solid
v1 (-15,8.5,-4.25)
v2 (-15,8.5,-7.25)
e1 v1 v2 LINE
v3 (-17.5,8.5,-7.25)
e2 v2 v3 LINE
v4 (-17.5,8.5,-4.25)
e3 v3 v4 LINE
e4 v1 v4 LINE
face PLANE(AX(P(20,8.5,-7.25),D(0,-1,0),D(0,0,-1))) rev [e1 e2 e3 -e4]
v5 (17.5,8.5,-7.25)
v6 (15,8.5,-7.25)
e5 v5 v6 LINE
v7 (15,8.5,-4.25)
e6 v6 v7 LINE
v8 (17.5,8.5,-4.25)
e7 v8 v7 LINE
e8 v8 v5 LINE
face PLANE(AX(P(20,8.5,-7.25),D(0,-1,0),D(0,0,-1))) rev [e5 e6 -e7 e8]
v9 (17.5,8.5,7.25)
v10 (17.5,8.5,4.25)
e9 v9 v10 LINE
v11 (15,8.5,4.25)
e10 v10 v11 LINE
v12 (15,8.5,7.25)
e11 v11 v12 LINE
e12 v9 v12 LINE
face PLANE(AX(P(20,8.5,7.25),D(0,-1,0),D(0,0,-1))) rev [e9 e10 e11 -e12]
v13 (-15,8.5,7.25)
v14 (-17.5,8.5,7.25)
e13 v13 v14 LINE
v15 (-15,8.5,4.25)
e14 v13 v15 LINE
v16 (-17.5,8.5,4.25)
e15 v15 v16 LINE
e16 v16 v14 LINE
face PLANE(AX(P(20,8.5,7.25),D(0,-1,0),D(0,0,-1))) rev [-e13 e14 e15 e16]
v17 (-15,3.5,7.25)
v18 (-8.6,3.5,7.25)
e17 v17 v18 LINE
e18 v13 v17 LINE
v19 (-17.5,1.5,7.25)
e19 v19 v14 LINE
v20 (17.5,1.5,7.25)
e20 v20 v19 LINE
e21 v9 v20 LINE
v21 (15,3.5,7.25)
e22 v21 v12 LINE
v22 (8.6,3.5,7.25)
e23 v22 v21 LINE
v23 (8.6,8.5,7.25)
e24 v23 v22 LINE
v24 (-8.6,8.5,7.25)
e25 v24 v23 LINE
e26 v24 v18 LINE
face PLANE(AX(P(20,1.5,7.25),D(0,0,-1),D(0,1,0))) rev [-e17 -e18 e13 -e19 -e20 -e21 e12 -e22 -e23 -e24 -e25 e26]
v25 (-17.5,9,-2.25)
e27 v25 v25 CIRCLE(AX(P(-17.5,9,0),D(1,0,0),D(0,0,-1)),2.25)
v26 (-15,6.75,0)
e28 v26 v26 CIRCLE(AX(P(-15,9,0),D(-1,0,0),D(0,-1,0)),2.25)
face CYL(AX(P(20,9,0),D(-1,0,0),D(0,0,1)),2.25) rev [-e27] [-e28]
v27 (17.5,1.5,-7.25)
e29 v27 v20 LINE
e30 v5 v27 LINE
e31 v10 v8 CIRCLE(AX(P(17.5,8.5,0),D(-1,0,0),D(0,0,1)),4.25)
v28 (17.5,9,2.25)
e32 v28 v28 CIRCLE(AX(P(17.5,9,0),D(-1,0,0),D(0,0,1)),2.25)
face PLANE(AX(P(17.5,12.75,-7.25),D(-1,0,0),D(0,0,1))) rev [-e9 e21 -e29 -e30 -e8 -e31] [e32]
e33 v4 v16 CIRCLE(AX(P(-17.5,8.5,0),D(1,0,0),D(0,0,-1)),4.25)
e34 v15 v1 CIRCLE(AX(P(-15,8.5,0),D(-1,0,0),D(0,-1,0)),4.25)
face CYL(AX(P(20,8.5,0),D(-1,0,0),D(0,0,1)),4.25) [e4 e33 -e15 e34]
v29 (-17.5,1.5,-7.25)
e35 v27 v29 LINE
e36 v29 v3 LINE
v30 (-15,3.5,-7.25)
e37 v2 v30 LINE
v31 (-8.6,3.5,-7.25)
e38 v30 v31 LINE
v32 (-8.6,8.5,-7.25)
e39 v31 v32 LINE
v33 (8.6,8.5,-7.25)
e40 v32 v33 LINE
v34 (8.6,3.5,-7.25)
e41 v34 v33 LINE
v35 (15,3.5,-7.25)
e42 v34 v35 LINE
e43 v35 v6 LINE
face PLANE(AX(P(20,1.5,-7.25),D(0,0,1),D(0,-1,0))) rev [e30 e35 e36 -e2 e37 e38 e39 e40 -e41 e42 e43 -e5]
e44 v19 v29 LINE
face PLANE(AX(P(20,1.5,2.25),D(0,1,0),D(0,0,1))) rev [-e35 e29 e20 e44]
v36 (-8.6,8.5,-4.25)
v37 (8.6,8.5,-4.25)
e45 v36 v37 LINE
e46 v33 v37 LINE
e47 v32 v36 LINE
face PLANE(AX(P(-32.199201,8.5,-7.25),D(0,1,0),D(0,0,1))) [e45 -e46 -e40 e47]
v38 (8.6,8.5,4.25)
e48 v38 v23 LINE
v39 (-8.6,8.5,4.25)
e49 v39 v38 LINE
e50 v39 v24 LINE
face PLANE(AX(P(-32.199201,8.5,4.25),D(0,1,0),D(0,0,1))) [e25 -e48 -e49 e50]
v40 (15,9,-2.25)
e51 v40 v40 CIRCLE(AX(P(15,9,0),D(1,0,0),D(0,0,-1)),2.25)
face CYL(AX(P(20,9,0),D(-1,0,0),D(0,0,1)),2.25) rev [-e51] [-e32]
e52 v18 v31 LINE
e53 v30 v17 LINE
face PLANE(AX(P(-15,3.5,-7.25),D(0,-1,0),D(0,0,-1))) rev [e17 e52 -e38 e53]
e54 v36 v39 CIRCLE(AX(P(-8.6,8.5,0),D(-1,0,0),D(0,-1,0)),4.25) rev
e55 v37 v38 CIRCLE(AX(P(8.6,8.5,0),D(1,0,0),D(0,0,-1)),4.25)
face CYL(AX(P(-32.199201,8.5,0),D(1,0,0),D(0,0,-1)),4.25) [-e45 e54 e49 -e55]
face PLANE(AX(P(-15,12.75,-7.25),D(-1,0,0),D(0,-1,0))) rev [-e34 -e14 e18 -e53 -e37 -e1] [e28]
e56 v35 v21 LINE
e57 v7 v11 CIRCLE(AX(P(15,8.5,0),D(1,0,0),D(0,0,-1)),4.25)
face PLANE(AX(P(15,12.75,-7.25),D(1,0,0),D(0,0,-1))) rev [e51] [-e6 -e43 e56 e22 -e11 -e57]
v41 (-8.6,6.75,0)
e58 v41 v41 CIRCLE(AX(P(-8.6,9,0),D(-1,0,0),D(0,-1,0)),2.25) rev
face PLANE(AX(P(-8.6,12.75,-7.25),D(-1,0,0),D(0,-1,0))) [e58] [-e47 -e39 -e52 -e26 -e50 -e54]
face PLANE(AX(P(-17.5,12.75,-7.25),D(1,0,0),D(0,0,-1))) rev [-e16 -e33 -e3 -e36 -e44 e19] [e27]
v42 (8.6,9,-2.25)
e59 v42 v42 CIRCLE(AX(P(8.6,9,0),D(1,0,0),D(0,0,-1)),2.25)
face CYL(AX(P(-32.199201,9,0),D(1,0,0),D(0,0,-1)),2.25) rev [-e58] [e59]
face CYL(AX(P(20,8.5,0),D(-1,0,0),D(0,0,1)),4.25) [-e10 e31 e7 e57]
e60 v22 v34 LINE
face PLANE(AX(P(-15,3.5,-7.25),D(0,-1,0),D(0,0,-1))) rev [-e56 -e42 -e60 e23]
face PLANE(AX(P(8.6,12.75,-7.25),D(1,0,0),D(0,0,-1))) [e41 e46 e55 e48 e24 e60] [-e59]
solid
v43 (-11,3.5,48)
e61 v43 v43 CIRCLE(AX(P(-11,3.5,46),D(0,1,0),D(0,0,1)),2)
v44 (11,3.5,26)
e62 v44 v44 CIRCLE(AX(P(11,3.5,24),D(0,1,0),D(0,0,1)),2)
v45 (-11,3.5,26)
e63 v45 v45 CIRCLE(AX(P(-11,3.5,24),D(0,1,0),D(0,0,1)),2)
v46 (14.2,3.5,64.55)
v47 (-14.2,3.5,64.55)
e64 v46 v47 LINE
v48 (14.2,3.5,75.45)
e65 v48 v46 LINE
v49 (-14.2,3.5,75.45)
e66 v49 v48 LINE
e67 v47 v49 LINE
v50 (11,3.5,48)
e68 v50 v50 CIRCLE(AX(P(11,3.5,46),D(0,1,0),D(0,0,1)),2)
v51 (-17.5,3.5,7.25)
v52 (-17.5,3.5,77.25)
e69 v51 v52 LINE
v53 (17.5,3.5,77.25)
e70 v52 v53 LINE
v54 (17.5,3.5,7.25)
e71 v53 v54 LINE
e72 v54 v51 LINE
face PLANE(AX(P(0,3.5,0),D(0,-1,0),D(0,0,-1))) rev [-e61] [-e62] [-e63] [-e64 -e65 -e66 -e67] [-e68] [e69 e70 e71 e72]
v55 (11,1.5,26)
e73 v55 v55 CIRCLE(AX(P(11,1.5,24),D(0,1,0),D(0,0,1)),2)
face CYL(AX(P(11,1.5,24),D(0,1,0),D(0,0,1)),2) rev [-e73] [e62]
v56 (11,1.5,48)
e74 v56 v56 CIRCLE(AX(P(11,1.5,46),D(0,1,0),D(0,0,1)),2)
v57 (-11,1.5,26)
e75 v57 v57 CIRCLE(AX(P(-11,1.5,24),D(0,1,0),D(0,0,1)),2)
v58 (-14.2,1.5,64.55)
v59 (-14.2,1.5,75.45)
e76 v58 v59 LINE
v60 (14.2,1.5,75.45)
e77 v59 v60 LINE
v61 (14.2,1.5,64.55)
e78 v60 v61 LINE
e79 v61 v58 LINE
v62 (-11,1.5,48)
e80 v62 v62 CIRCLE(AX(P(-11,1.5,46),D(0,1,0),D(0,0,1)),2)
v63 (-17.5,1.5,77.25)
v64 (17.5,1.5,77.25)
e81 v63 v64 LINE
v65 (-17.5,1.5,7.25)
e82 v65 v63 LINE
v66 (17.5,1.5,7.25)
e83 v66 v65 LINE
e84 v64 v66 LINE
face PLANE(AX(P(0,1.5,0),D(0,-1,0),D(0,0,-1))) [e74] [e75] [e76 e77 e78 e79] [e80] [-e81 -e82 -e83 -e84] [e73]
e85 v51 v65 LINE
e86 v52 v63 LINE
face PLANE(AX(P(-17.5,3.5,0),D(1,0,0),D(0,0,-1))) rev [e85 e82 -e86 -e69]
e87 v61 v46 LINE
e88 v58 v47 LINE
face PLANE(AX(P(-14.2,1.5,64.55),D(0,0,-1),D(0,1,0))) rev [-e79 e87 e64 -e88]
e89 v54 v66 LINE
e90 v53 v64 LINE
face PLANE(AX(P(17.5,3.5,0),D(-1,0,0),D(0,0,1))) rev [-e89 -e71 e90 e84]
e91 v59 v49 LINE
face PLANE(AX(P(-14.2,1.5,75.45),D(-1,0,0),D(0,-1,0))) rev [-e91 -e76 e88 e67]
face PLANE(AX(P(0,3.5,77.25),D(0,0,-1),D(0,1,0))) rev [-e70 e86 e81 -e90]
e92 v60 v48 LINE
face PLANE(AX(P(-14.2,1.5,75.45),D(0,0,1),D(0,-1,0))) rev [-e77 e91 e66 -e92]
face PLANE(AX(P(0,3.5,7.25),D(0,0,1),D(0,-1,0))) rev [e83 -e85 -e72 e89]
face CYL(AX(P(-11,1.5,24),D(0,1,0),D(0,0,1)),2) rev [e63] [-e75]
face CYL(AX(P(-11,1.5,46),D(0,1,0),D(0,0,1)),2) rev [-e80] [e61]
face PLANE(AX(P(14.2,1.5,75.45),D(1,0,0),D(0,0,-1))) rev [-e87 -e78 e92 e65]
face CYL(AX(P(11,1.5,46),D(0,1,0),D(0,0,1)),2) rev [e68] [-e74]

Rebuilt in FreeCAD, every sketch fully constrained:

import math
import FreeCAD as App
import Part
import Sketcher
from FreeCAD import Vector
Q = App.Units.Quantity


def add_polygon(sketch, points):
    """Adds a closed chain of lines whose ends are joined by coincident constraints."""
    first, n = sketch.GeometryCount, len(points)
    for a, b in zip(points, points[1:] + points[:1]):
        sketch.addGeometry(Part.LineSegment(App.Vector(*a, 0), App.Vector(*b, 0)), False)
    for i in range(n):
        sketch.addConstraint(Sketcher.Constraint("Coincident", first + i, 2, first + (i + 1) % n, 1))

doc = App.newDocument("Part")
body = doc.addObject("PartDesign::Body", "Body")

sketch1 = body.newObject("Sketcher::SketchObject", "Sketch")
sketch1.AttachmentSupport = (doc.getObject("YZ_Plane"), [""])
sketch1.MapMode = "FlatFace"
sketch1.addGeometry([
    Part.LineSegment(Vector(1.5, -2.25, 0), Vector(1.5, -7.25, 0)),
    Part.LineSegment(Vector(1.5, -7.25, 0), Vector(8.5, -7.25, 0)),
    Part.LineSegment(Vector(8.5, -7.25, 0), Vector(8.5, -4.25, 0)),
    Part.ArcOfCircle(Part.Circle(Vector(8.5, 0, 0), Vector(0, 0, 1), 4.25), math.radians(-90), math.radians(90)),
    Part.LineSegment(Vector(8.5, 4.25, 0), Vector(8.5, 7.25, 0)),
    Part.LineSegment(Vector(8.5, 7.25, 0), Vector(1.5, 7.25, 0)),
    Part.LineSegment(Vector(1.5, 7.25, 0), Vector(1.5, 2.25, 0)),
    Part.LineSegment(Vector(1.5, 2.25, 0), Vector(-1.5, 2.25, 0)),
    Part.LineSegment(Vector(-1.5, 2.25, 0), Vector(-1.5, -2.25, 0)),
    Part.LineSegment(Vector(-1.5, -2.25, 0), Vector(1.5, -2.25, 0)),
    Part.Circle(Vector(9, 0, 0), Vector(0, 0, 1), 2.25),
], False)
sketch1.addConstraint([
    Sketcher.Constraint("Coincident", 0, 2, 1, 1),
    Sketcher.Constraint("Coincident", 1, 2, 2, 1),
    Sketcher.Constraint("Coincident", 2, 2, 3, 1),
    Sketcher.Constraint("Coincident", 3, 2, 4, 1),
    Sketcher.Constraint("Coincident", 4, 2, 5, 1),
    Sketcher.Constraint("Coincident", 5, 2, 6, 1),
    Sketcher.Constraint("Coincident", 6, 2, 7, 1),
    Sketcher.Constraint("Coincident", 7, 2, 8, 1),
    Sketcher.Constraint("Coincident", 8, 2, 9, 1),
    Sketcher.Constraint("Coincident", 9, 2, 0, 1),
    Sketcher.Constraint("Vertical", 0),
    Sketcher.Constraint("Horizontal", 1),
    Sketcher.Constraint("Vertical", 2),
    Sketcher.Constraint("Vertical", 4),
    Sketcher.Constraint("Horizontal", 5),
    Sketcher.Constraint("Vertical", 6),
    Sketcher.Constraint("Horizontal", 7),
    Sketcher.Constraint("Vertical", 8),
    Sketcher.Constraint("Horizontal", 9),
    Sketcher.Constraint("Symmetric", 6, 2, 8, 2, -1, 1),
    Sketcher.Constraint("Symmetric", 2, 2, 3, 2, -1),
    Sketcher.Constraint("Symmetric", 0, 2, 5, 2, -1),
    Sketcher.Constraint("PointOnObject", 10, 3, -1),
    Sketcher.Constraint("Vertical", 3, 3, 1, 2),
    Sketcher.Constraint("Equal", 9, 2),
    Sketcher.Constraint("Diameter", 10, Q("4.5 mm")),
    Sketcher.Constraint("DistanceX", 1, 1, 1, 2, Q("7 mm")),
    Sketcher.Constraint("DistanceX", 7, 2, 7, 1, Q("3 mm")),
    Sketcher.Constraint("DistanceY", 0, 2, 0, 1, Q("5 mm")),
    Sketcher.Constraint("Radius", 3, Q("4.25 mm")),
    Sketcher.Constraint("DistanceX", -1, 1, 10, 3, Q("9 mm")),
])
pad1 = body.newObject("PartDesign::Pad", "Pad")
pad1.Profile = sketch1
pad1.Length = 40
pad1.Midplane = True

sketch2 = body.newObject("Sketcher::SketchObject", "Sketch001")
sketch2.AttachmentSupport = (doc.getObject("XY_Plane"), [""])
sketch2.MapMode = "FlatFace"
sketch2.AttachmentOffset = App.Placement(Vector(0, 0, 7.25), App.Rotation())
add_polygon(sketch2, [(-15, 12.75), (-15, 3.5), (15, 3.5), (15, 12.75)])
sketch2.addConstraint([
    Sketcher.Constraint("Vertical", 0),
    Sketcher.Constraint("Horizontal", 1),
    Sketcher.Constraint("Vertical", 2),
    Sketcher.Constraint("Horizontal", 3),
    Sketcher.Constraint("DistanceX", 1, 1, 1, 2, Q("30 mm")),
    Sketcher.Constraint("DistanceX", 0, 2, -1, 1, Q("15 mm")),
    Sketcher.Constraint("DistanceY", 0, 2, 0, 1, Q("9.25 mm")),
    Sketcher.Constraint("DistanceY", -1, 1, 0, 2, Q("3.5 mm")),
])
pocket1 = body.newObject("PartDesign::Pocket", "Pocket")
pocket1.Profile = sketch2
pocket1.Type = "ThroughAll"

sketch3 = body.newObject("Sketcher::SketchObject", "Sketch002")
sketch3.AttachmentSupport = (doc.getObject("XY_Plane"), [""])
sketch3.MapMode = "FlatFace"
sketch3.AttachmentOffset = App.Placement(Vector(0, 0, 7.25), App.Rotation())
add_polygon(sketch3, [(-20, 12.75), (-20, -1.5), (-17.5, -1.5), (-17.5, 12.75)])
add_polygon(sketch3, [(17.5, 12.75), (17.5, -1.5), (20, -1.5), (20, 12.75)])
sketch3.addConstraint([
    Sketcher.Constraint("Vertical", 0),
    Sketcher.Constraint("Horizontal", 1),
    Sketcher.Constraint("Vertical", 2),
    Sketcher.Constraint("Horizontal", 3),
    Sketcher.Constraint("Vertical", 4),
    Sketcher.Constraint("Horizontal", 5),
    Sketcher.Constraint("Vertical", 6),
    Sketcher.Constraint("Horizontal", 7),
    Sketcher.Constraint("Symmetric", 1, 2, 4, 2, -2),
    Sketcher.Constraint("Symmetric", 3, 2, 6, 2, -2),
    Sketcher.Constraint("DistanceX", 1, 1, 1, 2, Q("2.5 mm")),
    Sketcher.Constraint("DistanceX", 0, 2, -1, 1, Q("20 mm")),
    Sketcher.Constraint("DistanceY", 0, 2, 0, 1, Q("14.25 mm")),
    Sketcher.Constraint("DistanceY", 0, 2, -1, 1, Q("1.5 mm")),
])
pocket2 = body.newObject("PartDesign::Pocket", "Pocket001")
pocket2.Profile = sketch3
pocket2.Type = "ThroughAll"

sketch4 = body.newObject("Sketcher::SketchObject", "Sketch003")
sketch4.AttachmentSupport = (doc.getObject("YZ_Plane"), [""])
sketch4.MapMode = "FlatFace"
sketch4.addGeometry([
    Part.LineSegment(Vector(8.5, 4.25, 0), Vector(8.5, 7.25, 0)),
    Part.LineSegment(Vector(8.5, 7.25, 0), Vector(3.5, 7.25, 0)),
    Part.LineSegment(Vector(3.5, 7.25, 0), Vector(3.5, -7.25, 0)),
    Part.LineSegment(Vector(3.5, -7.25, 0), Vector(8.5, -7.25, 0)),
    Part.LineSegment(Vector(8.5, -7.25, 0), Vector(8.5, -4.25, 0)),
    Part.ArcOfCircle(Part.Circle(Vector(8.5, 0, 0), Vector(0, 0, 1), 4.25), math.radians(-90), math.radians(90)),
    Part.Circle(Vector(9, 0, 0), Vector(0, 0, 1), 2.25),
], False)
sketch4.addConstraint([
    Sketcher.Constraint("Coincident", 0, 2, 1, 1),
    Sketcher.Constraint("Coincident", 1, 2, 2, 1),
    Sketcher.Constraint("Coincident", 2, 2, 3, 1),
    Sketcher.Constraint("Coincident", 3, 2, 4, 1),
    Sketcher.Constraint("Coincident", 4, 2, 5, 1),
    Sketcher.Constraint("Coincident", 5, 2, 0, 1),
    Sketcher.Constraint("Vertical", 0),
    Sketcher.Constraint("Horizontal", 1),
    Sketcher.Constraint("Vertical", 2),
    Sketcher.Constraint("Horizontal", 3),
    Sketcher.Constraint("Vertical", 4),
    Sketcher.Constraint("Symmetric", 0, 2, 3, 2, -1),
    Sketcher.Constraint("PointOnObject", 5, 3, -1),
    Sketcher.Constraint("PointOnObject", 6, 3, -1),
    Sketcher.Constraint("Vertical", 5, 3, 0, 2),
    Sketcher.Constraint("Diameter", 6, Q("4.5 mm")),
    Sketcher.Constraint("DistanceX", 1, 2, 1, 1, Q("5 mm")),
    Sketcher.Constraint("DistanceY", 0, 1, 0, 2, Q("3 mm")),
    Sketcher.Constraint("Radius", 5, Q("4.25 mm")),
    Sketcher.Constraint("DistanceX", -1, 1, 6, 3, Q("9 mm")),
    Sketcher.Constraint("DistanceX", -1, 1, 5, 3, Q("8.5 mm")),
])
pad2 = body.newObject("PartDesign::Pad", "Pad001")
pad2.Profile = sketch4
pad2.Type = "TwoLengths"
pad2.Length = 8.6
pad2.Length2 = 8.6

sketch5 = body.newObject("Sketcher::SketchObject", "Sketch004")
sketch5.AttachmentSupport = (doc.getObject("YZ_Plane"), [""])
sketch5.MapMode = "FlatFace"
sketch5.AttachmentOffset = App.Placement(Vector(0, 0, -17.5), App.Rotation())
add_polygon(sketch5, [(1.5, -2.25), (-1.5, -2.25), (-1.5, 2.25), (1.5, 2.25)])
sketch5.addConstraint([
    Sketcher.Constraint("Horizontal", 0),
    Sketcher.Constraint("Vertical", 1),
    Sketcher.Constraint("Horizontal", 2),
    Sketcher.Constraint("Vertical", 3),
    Sketcher.Constraint("Symmetric", 0, 2, 2, 2, -1, 1),
    Sketcher.Constraint("DistanceX", 0, 2, 0, 1, Q("3 mm")),
    Sketcher.Constraint("DistanceY", 1, 1, 1, 2, Q("4.5 mm")),
])
pocket3 = body.newObject("PartDesign::Pocket", "Pocket002")
pocket3.Profile = sketch5
pocket3.Type = "ThroughAll"
pocket3.Reversed = True
body2 = doc.addObject("PartDesign::Body", "Body001")

sketch6 = body2.newObject("Sketcher::SketchObject", "Sketch005")
sketch6.AttachmentSupport = (doc.getObject("XZ_Plane001"), [""])
sketch6.MapMode = "FlatFace"
sketch6.AttachmentOffset = App.Placement(Vector(0, 0, -1.5), App.Rotation())
add_polygon(sketch6, [(-17.5, 77.25), (-17.5, 7.25), (17.5, 7.25), (17.5, 77.25)])
sketch6.addConstraint([
    Sketcher.Constraint("Vertical", 0),
    Sketcher.Constraint("Horizontal", 1),
    Sketcher.Constraint("Vertical", 2),
    Sketcher.Constraint("Horizontal", 3),
    Sketcher.Constraint("DistanceX", 1, 1, 1, 2, Q("35 mm")),
    Sketcher.Constraint("DistanceY", 0, 2, 0, 1, Q("70 mm")),
    Sketcher.Constraint("DistanceX", 0, 2, -1, 1, Q("17.5 mm")),
    Sketcher.Constraint("DistanceY", -1, 1, 0, 2, Q("7.25 mm")),
])
pad3 = body2.newObject("PartDesign::Pad", "Pad002")
pad3.Profile = sketch6
pad3.Length = 2
pad3.Reversed = True

sketch7 = body2.newObject("Sketcher::SketchObject", "Sketch006")
sketch7.AttachmentSupport = (doc.getObject("XZ_Plane001"), [""])
sketch7.MapMode = "FlatFace"
sketch7.AttachmentOffset = App.Placement(Vector(0, 0, -3.5), App.Rotation())
add_polygon(sketch7, [(-14.2, 64.55), (-14.2, 75.45), (14.2, 75.45), (14.2, 64.55)])
sketch7.addConstraint([
    Sketcher.Constraint("Vertical", 0),
    Sketcher.Constraint("Horizontal", 1),
    Sketcher.Constraint("Vertical", 2),
    Sketcher.Constraint("Horizontal", 3),
    Sketcher.Constraint("DistanceX", 1, 1, 1, 2, Q("28.4 mm")),
    Sketcher.Constraint("DistanceY", 0, 1, 0, 2, Q("10.9 mm")),
    Sketcher.Constraint("DistanceX", 0, 2, -1, 1, Q("14.2 mm")),
    Sketcher.Constraint("DistanceY", -1, 1, 0, 2, Q("75.45 mm")),
])
pocket4 = body2.newObject("PartDesign::Pocket", "Pocket003")
pocket4.Profile = sketch7
pocket4.Type = "ThroughAll"
pocket4.Reversed = True

sketch8 = body2.newObject("Sketcher::SketchObject", "Sketch007")
sketch8.AttachmentSupport = (doc.getObject("XZ_Plane001"), [""])
sketch8.MapMode = "FlatFace"
sketch8.AttachmentOffset = App.Placement(Vector(0, 0, -3.5), App.Rotation())
sketch8.addGeometry([
    Part.Circle(Vector(-11, 46, 0), Vector(0, 0, 1), 2),
    Part.Circle(Vector(11, 46, 0), Vector(0, 0, 1), 2),
    Part.Circle(Vector(11, 24, 0), Vector(0, 0, 1), 2),
    Part.Circle(Vector(-11, 24, 0), Vector(0, 0, 1), 2),
], False)
sketch8.addConstraint([
    Sketcher.Constraint("Equal", 0, 1),
    Sketcher.Constraint("Equal", 1, 2),
    Sketcher.Constraint("Equal", 2, 3),
    Sketcher.Constraint("Symmetric", 0, 3, 1, 3, -2),
    Sketcher.Constraint("Symmetric", 2, 3, 3, 3, -2),
    Sketcher.Constraint("Vertical", 1, 3, 2, 3),
    Sketcher.Constraint("Diameter", 0, Q("4 mm")),
    Sketcher.Constraint("DistanceX", 0, 3, -1, 1, Q("11 mm")),
    Sketcher.Constraint("DistanceY", -1, 1, 0, 3, Q("46 mm")),
    Sketcher.Constraint("DistanceY", -1, 1, 2, 3, Q("24 mm")),
])
pocket5 = body2.newObject("PartDesign::Pocket", "Pocket004")
pocket5.Profile = sketch8
pocket5.Type = "ThroughAll"
pocket5.Reversed = True

doc.recompute()
